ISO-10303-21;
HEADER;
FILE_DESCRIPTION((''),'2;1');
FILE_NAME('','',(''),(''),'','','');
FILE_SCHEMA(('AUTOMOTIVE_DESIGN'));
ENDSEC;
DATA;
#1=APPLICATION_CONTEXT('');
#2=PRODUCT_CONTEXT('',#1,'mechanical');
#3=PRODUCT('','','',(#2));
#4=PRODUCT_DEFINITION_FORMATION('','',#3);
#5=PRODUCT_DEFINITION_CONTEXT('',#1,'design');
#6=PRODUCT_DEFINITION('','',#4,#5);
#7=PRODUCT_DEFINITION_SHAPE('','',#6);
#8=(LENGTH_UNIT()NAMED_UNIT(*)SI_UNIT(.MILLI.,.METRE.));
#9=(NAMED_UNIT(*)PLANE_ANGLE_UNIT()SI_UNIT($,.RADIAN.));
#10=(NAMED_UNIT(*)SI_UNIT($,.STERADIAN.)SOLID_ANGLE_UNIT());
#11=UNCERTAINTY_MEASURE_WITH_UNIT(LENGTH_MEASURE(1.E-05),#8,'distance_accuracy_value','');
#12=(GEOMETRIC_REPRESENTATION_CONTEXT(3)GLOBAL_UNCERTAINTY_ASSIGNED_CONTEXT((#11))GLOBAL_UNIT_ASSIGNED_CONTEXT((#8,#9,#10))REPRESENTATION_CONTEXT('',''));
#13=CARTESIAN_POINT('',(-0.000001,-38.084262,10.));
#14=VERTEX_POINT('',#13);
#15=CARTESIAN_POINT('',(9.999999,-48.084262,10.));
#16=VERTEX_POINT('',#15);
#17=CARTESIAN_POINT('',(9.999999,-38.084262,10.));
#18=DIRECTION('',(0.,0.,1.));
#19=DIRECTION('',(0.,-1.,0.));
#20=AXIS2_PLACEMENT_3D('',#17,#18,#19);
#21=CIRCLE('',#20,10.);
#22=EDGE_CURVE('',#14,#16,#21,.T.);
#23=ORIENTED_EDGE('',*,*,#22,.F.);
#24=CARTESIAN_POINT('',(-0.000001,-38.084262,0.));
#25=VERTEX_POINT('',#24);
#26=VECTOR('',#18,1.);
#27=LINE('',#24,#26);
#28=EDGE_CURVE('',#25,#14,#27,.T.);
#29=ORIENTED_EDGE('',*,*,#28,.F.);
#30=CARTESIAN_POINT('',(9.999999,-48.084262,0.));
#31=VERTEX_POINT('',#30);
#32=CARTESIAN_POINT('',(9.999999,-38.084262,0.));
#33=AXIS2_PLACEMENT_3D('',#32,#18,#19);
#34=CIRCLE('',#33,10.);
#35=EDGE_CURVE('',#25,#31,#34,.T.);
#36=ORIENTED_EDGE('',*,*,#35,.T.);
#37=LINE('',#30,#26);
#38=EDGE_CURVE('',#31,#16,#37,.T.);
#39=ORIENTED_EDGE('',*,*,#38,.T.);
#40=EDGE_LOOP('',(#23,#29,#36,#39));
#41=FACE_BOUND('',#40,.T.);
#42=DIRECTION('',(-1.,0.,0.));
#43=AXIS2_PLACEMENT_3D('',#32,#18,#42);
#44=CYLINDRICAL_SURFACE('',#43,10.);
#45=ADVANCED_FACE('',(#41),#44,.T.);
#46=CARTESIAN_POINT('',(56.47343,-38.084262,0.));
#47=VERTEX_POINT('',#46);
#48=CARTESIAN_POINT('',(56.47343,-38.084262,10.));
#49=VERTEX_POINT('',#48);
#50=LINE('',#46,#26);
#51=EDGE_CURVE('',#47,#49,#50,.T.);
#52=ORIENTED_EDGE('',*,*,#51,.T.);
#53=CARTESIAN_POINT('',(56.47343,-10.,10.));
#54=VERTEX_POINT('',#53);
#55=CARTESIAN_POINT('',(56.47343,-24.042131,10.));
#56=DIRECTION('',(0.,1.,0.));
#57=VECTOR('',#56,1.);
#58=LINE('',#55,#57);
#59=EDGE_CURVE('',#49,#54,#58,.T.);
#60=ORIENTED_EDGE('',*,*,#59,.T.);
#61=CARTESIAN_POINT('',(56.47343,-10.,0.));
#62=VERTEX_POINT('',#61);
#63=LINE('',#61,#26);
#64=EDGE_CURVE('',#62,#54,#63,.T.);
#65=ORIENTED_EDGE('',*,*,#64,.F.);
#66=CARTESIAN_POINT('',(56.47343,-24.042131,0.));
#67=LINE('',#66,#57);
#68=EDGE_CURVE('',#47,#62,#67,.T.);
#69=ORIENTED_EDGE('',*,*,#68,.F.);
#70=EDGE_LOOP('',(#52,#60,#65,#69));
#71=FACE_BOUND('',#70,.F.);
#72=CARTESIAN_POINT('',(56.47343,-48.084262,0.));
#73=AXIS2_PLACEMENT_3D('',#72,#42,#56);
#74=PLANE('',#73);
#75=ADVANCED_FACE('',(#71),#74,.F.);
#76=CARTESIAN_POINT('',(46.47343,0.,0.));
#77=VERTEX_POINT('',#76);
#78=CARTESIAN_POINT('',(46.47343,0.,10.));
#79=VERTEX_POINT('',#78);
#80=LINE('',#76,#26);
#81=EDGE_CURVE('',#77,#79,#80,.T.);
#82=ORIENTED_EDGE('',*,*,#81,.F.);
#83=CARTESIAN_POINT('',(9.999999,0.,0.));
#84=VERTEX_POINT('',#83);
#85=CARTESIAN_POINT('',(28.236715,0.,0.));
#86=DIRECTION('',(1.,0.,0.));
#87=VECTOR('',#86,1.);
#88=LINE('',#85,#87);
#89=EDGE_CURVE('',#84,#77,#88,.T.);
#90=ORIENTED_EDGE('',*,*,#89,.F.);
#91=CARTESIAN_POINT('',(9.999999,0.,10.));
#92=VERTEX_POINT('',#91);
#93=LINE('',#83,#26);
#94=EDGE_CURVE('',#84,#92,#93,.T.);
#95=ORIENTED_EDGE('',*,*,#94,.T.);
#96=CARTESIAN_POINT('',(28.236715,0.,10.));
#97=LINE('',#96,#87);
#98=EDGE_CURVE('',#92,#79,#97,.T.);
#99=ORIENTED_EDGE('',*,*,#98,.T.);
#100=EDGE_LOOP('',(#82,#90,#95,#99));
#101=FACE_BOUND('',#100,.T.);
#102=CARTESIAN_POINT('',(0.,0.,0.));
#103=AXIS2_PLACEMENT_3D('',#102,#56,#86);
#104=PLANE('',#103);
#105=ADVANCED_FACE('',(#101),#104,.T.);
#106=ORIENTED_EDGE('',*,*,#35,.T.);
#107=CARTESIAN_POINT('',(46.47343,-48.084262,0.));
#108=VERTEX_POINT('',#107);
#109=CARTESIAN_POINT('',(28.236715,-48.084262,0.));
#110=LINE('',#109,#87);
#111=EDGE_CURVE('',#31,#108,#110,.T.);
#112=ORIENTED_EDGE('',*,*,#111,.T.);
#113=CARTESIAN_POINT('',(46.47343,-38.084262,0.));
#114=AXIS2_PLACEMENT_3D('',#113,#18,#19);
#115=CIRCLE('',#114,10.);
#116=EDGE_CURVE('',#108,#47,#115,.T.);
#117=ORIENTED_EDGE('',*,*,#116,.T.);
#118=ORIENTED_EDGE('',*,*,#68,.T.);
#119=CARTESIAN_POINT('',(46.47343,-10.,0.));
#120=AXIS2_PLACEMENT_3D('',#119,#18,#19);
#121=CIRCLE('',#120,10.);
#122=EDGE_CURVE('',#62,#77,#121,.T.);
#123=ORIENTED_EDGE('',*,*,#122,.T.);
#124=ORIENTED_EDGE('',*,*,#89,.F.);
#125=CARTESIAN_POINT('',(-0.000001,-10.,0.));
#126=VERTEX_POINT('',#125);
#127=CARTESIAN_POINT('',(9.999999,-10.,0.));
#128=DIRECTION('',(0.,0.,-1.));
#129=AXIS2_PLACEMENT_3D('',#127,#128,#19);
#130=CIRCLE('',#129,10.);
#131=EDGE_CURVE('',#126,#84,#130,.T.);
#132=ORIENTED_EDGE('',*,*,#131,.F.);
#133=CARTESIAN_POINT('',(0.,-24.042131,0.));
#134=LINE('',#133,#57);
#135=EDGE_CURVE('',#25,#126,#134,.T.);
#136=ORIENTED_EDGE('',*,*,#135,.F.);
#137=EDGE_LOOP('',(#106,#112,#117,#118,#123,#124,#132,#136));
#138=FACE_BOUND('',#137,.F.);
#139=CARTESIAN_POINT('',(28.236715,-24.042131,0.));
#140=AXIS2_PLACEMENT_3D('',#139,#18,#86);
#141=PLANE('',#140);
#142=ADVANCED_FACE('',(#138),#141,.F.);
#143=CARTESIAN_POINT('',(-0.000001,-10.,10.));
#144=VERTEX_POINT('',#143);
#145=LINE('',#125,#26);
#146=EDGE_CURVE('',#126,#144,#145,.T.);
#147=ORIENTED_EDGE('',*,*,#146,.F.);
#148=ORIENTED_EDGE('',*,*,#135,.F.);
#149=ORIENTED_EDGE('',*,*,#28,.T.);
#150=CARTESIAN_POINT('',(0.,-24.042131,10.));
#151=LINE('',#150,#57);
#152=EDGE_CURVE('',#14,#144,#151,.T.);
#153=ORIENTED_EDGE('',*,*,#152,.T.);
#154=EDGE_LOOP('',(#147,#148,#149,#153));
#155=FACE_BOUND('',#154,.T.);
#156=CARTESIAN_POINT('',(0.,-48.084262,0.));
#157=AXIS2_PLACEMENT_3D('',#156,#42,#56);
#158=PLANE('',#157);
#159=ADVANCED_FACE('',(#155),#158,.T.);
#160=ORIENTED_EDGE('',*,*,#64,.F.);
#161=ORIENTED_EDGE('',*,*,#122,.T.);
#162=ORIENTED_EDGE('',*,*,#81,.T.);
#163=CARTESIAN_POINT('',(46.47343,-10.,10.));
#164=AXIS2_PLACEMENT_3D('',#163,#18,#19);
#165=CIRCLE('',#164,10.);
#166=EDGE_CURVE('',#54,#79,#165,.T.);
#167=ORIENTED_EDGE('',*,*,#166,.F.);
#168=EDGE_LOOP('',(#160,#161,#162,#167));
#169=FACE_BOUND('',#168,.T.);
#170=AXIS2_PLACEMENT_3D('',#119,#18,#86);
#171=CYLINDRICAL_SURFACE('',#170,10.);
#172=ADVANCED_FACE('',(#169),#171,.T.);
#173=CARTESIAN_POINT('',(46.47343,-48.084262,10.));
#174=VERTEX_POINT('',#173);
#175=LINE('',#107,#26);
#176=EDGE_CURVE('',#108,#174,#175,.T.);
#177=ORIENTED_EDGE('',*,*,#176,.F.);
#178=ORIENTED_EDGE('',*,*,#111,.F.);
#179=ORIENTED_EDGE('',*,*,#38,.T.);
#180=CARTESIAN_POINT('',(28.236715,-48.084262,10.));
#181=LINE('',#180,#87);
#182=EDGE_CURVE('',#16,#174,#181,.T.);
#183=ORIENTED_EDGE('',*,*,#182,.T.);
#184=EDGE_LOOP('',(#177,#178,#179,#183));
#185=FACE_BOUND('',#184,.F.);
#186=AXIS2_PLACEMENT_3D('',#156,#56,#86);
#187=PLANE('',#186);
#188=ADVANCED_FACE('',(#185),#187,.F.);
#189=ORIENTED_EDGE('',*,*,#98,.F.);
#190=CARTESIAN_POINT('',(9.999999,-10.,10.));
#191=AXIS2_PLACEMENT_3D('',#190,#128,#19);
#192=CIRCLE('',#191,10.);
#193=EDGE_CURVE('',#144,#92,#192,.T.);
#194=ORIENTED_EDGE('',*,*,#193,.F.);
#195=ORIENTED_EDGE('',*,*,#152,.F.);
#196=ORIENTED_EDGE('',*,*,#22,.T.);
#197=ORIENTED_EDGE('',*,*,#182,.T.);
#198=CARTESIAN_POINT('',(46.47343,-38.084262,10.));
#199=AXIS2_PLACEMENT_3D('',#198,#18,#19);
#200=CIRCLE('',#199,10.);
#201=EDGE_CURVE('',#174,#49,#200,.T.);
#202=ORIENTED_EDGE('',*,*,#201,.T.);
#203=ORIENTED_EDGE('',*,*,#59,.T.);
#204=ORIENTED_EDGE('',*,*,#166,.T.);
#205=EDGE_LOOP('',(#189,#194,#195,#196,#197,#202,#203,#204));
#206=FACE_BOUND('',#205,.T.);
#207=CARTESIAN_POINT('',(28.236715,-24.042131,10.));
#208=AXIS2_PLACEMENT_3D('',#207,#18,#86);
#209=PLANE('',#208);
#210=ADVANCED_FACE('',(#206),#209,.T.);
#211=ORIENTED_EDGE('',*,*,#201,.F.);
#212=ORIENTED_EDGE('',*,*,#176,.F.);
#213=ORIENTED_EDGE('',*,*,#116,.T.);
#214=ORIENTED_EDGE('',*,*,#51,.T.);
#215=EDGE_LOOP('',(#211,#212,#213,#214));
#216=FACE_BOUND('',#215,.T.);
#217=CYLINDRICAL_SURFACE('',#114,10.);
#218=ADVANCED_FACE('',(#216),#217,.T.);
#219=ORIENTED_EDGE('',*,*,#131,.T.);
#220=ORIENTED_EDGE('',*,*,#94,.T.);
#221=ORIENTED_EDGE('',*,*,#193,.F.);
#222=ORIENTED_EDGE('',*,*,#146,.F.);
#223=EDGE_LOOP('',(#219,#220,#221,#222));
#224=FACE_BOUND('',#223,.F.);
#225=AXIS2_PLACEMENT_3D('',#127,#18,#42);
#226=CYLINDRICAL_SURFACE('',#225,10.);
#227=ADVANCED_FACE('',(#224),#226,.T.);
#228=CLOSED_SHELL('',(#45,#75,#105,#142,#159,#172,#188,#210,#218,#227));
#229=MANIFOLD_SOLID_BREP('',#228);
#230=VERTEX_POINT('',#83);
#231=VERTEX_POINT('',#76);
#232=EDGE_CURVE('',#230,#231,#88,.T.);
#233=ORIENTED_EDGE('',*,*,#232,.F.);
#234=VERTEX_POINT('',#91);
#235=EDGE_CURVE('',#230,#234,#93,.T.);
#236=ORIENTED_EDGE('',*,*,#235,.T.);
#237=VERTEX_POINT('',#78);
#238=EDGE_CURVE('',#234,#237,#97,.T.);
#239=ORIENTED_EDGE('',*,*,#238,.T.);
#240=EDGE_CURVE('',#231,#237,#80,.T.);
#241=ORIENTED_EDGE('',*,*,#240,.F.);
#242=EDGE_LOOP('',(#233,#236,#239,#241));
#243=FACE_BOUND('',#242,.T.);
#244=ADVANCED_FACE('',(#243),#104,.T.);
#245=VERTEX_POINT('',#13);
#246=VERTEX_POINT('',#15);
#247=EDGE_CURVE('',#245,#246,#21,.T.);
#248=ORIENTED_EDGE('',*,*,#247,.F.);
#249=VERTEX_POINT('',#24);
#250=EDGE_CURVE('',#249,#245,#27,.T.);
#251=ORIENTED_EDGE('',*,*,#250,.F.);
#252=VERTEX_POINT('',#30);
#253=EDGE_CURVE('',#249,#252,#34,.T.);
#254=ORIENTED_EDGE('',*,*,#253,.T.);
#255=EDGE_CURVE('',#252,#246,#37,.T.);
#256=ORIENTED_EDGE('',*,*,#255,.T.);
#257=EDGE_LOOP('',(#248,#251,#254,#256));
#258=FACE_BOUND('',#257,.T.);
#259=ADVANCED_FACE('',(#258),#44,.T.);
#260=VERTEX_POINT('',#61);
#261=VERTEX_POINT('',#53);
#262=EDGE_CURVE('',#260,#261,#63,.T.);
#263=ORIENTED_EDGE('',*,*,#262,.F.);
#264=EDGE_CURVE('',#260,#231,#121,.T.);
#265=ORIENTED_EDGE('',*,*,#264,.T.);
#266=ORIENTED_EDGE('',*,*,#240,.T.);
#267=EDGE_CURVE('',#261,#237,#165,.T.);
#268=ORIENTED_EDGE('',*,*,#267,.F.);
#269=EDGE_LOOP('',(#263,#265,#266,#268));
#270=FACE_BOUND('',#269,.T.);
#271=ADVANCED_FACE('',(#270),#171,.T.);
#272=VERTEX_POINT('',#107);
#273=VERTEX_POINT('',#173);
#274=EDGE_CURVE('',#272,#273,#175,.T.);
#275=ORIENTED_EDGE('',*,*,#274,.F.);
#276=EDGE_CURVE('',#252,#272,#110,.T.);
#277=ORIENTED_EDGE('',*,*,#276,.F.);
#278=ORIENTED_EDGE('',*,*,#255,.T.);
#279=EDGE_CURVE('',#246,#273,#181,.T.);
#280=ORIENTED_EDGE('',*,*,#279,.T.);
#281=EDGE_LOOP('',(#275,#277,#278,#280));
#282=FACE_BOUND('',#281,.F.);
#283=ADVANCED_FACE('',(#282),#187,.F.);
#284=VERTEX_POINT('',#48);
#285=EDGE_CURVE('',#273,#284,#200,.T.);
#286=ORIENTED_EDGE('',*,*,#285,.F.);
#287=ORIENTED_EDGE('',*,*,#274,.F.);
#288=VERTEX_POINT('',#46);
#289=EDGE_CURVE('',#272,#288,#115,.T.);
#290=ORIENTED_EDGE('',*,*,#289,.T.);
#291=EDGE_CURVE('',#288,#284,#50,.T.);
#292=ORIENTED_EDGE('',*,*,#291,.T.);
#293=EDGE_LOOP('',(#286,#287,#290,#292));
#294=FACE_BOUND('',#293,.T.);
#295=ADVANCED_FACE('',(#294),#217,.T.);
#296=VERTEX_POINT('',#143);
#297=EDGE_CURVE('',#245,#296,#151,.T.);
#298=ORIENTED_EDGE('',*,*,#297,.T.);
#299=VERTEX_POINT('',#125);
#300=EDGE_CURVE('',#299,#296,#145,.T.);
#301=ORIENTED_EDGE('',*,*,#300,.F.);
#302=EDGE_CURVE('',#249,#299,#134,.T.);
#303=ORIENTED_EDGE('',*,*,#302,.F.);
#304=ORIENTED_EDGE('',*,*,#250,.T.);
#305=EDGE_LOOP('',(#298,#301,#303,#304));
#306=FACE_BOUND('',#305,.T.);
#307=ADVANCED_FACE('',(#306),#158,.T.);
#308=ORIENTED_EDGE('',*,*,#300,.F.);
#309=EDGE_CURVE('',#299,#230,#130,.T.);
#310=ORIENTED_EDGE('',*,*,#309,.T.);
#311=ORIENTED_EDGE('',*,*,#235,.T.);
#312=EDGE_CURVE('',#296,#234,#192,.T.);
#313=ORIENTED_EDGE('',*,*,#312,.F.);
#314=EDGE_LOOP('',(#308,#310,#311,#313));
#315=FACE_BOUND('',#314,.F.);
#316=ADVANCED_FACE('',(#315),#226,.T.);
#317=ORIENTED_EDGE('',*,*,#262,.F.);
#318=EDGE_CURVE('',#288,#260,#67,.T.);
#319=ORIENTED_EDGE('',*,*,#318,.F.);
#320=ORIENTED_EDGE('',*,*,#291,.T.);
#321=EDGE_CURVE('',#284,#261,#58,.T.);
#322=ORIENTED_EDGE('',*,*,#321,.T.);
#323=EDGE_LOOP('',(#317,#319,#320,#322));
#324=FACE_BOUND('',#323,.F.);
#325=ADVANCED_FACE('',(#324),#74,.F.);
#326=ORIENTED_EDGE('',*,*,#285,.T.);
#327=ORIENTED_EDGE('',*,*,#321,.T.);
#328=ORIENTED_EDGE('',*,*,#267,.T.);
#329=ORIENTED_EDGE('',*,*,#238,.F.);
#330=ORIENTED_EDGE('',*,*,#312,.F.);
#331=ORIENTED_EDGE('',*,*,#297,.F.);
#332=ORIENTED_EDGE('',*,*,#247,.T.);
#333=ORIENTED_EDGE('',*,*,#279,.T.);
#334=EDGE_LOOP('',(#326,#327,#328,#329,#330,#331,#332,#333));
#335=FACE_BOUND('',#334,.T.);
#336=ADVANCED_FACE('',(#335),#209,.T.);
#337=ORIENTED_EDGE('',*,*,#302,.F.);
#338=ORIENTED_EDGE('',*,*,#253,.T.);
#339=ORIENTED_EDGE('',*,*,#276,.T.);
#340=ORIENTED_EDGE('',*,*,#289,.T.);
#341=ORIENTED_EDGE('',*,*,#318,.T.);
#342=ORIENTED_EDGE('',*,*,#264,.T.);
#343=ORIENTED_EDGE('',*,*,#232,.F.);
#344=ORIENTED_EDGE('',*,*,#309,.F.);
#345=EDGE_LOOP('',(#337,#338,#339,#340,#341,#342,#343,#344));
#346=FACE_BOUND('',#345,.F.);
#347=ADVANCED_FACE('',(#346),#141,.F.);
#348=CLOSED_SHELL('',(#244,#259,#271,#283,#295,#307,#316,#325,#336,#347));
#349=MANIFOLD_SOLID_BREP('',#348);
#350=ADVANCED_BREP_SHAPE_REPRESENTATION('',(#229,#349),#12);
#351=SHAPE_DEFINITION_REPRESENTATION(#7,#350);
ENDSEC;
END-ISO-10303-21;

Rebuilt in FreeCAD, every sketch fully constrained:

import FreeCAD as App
import Part
import Sketcher

V = App.Vector
Q = App.Units.Quantity


def edges_at(feature, points):
    """Names of the edges that pass closest to the given points."""
    edges = feature.Shape.Edges
    near = lambda p: min(range(len(edges)), key=lambda i: edges[i].distToShape(Part.Vertex(*p))[0])
    return sorted({f"Edge{near(p) + 1}" for p in points})

doc = App.newDocument("Part")
params = doc.addObject("Spreadsheet::Sheet", "Params")
for row, (alias, value) in enumerate([
    ("pad1_length", "10 mm"),
    ("fillet_radius", "10 mm"),
    ("pad2_length", "10 mm"),
    ("fillet2_radius", "10 mm"),
], start=1):
    params.set(f"A{row}", alias)
    params.set(f"B{row}", "=" + value)
    params.setAlias(f"B{row}", alias)

body = doc.addObject("PartDesign::Body", "Body")

# Sketch on XY plane
sketch1 = doc.addObject("Sketcher::SketchObject", "Sketch")
body.addObject(sketch1)
sketch1.AttachmentSupport = (doc.XY_Plane, [""])
sketch1.MapMode = "FlatFace"
sketch1.addGeometry([
    Part.LineSegment(V(0, 0, 0), V(0, -48, 0)),
    Part.LineSegment(V(0, -48, 0), V(56, -48, 0)),
    Part.LineSegment(V(56, -48, 0), V(56, 0, 0)),
    Part.LineSegment(V(56, 0, 0), V(0, 0, 0)),
], False)
sketch1.addConstraint([
    Sketcher.Constraint("Coincident", 0, 2, 1, 1),
    Sketcher.Constraint("Coincident", 1, 2, 2, 1),
    Sketcher.Constraint("Coincident", 2, 2, 3, 1),
    Sketcher.Constraint("Coincident", 3, 2, 0, 1),
    Sketcher.Constraint("Vertical", 0),
    Sketcher.Constraint("Horizontal", 1),
    Sketcher.Constraint("Vertical", 2),
    Sketcher.Constraint("Horizontal", 3),
    Sketcher.Constraint("Coincident", 3, 2, -1, 1),
    Sketcher.Constraint("DistanceX", 1, 1, 1, 2, Q("56.473431 mm")),
    Sketcher.Constraint("DistanceY", 0, 2, 0, 1, Q("48.084262 mm")),
])
pad1 = doc.addObject("PartDesign::Pad", "Pad")
body.addObject(pad1)
pad1.Profile = sketch1
pad1.setExpression("Length", "Params.pad1_length")
doc.recompute()

fillet = doc.addObject("PartDesign::Fillet", "Fillet")
body.addObject(fillet)
fillet.Base = (pad1, edges_at(pad1, [
    (56.473, 0, 5),
    (0, 0, 5),
    (0, -48.084, 5),
    (56.473, -48.084, 5),
]))
fillet.setExpression("Radius", "Params.fillet_radius")
body2 = doc.addObject("PartDesign::Body", "Body001")

# Sketch on XY plane
sketch2 = doc.addObject("Sketcher::SketchObject", "Sketch001")
body2.addObject(sketch2)
sketch2.AttachmentSupport = (doc.getObject("XY_Plane001"), [""])
sketch2.MapMode = "FlatFace"
sketch2.addGeometry([
    Part.LineSegment(V(0, 0, 0), V(0, -48, 0)),
    Part.LineSegment(V(0, -48, 0), V(56, -48, 0)),
    Part.LineSegment(V(56, -48, 0), V(56, 0, 0)),
    Part.LineSegment(V(56, 0, 0), V(0, 0, 0)),
], False)
sketch2.addConstraint([
    Sketcher.Constraint("Coincident", 0, 2, 1, 1),
    Sketcher.Constraint("Coincident", 1, 2, 2, 1),
    Sketcher.Constraint("Coincident", 2, 2, 3, 1),
    Sketcher.Constraint("Coincident", 3, 2, 0, 1),
    Sketcher.Constraint("Vertical", 0),
    Sketcher.Constraint("Horizontal", 1),
    Sketcher.Constraint("Vertical", 2),
    Sketcher.Constraint("Horizontal", 3),
    Sketcher.Constraint("Coincident", 3, 2, -1, 1),
    Sketcher.Constraint("DistanceX", 1, 1, 1, 2, Q("56.473431 mm")),
    Sketcher.Constraint("DistanceY", 0, 2, 0, 1, Q("48.084262 mm")),
])
pad2 = doc.addObject("PartDesign::Pad", "Pad001")
body2.addObject(pad2)
pad2.Profile = sketch2
pad2.setExpression("Length", "Params.pad2_length")
doc.recompute()

fillet2 = doc.addObject("PartDesign::Fillet", "Fillet001")
body2.addObject(fillet2)
fillet2.Base = (pad2, edges_at(pad2, [
    (56.473, 0, 5),
    (0, 0, 5),
    (0, -48.084, 5),
    (56.473, -48.084, 5),
]))
fillet2.setExpression("Radius", "Params.fillet2_radius")

doc.recompute()
